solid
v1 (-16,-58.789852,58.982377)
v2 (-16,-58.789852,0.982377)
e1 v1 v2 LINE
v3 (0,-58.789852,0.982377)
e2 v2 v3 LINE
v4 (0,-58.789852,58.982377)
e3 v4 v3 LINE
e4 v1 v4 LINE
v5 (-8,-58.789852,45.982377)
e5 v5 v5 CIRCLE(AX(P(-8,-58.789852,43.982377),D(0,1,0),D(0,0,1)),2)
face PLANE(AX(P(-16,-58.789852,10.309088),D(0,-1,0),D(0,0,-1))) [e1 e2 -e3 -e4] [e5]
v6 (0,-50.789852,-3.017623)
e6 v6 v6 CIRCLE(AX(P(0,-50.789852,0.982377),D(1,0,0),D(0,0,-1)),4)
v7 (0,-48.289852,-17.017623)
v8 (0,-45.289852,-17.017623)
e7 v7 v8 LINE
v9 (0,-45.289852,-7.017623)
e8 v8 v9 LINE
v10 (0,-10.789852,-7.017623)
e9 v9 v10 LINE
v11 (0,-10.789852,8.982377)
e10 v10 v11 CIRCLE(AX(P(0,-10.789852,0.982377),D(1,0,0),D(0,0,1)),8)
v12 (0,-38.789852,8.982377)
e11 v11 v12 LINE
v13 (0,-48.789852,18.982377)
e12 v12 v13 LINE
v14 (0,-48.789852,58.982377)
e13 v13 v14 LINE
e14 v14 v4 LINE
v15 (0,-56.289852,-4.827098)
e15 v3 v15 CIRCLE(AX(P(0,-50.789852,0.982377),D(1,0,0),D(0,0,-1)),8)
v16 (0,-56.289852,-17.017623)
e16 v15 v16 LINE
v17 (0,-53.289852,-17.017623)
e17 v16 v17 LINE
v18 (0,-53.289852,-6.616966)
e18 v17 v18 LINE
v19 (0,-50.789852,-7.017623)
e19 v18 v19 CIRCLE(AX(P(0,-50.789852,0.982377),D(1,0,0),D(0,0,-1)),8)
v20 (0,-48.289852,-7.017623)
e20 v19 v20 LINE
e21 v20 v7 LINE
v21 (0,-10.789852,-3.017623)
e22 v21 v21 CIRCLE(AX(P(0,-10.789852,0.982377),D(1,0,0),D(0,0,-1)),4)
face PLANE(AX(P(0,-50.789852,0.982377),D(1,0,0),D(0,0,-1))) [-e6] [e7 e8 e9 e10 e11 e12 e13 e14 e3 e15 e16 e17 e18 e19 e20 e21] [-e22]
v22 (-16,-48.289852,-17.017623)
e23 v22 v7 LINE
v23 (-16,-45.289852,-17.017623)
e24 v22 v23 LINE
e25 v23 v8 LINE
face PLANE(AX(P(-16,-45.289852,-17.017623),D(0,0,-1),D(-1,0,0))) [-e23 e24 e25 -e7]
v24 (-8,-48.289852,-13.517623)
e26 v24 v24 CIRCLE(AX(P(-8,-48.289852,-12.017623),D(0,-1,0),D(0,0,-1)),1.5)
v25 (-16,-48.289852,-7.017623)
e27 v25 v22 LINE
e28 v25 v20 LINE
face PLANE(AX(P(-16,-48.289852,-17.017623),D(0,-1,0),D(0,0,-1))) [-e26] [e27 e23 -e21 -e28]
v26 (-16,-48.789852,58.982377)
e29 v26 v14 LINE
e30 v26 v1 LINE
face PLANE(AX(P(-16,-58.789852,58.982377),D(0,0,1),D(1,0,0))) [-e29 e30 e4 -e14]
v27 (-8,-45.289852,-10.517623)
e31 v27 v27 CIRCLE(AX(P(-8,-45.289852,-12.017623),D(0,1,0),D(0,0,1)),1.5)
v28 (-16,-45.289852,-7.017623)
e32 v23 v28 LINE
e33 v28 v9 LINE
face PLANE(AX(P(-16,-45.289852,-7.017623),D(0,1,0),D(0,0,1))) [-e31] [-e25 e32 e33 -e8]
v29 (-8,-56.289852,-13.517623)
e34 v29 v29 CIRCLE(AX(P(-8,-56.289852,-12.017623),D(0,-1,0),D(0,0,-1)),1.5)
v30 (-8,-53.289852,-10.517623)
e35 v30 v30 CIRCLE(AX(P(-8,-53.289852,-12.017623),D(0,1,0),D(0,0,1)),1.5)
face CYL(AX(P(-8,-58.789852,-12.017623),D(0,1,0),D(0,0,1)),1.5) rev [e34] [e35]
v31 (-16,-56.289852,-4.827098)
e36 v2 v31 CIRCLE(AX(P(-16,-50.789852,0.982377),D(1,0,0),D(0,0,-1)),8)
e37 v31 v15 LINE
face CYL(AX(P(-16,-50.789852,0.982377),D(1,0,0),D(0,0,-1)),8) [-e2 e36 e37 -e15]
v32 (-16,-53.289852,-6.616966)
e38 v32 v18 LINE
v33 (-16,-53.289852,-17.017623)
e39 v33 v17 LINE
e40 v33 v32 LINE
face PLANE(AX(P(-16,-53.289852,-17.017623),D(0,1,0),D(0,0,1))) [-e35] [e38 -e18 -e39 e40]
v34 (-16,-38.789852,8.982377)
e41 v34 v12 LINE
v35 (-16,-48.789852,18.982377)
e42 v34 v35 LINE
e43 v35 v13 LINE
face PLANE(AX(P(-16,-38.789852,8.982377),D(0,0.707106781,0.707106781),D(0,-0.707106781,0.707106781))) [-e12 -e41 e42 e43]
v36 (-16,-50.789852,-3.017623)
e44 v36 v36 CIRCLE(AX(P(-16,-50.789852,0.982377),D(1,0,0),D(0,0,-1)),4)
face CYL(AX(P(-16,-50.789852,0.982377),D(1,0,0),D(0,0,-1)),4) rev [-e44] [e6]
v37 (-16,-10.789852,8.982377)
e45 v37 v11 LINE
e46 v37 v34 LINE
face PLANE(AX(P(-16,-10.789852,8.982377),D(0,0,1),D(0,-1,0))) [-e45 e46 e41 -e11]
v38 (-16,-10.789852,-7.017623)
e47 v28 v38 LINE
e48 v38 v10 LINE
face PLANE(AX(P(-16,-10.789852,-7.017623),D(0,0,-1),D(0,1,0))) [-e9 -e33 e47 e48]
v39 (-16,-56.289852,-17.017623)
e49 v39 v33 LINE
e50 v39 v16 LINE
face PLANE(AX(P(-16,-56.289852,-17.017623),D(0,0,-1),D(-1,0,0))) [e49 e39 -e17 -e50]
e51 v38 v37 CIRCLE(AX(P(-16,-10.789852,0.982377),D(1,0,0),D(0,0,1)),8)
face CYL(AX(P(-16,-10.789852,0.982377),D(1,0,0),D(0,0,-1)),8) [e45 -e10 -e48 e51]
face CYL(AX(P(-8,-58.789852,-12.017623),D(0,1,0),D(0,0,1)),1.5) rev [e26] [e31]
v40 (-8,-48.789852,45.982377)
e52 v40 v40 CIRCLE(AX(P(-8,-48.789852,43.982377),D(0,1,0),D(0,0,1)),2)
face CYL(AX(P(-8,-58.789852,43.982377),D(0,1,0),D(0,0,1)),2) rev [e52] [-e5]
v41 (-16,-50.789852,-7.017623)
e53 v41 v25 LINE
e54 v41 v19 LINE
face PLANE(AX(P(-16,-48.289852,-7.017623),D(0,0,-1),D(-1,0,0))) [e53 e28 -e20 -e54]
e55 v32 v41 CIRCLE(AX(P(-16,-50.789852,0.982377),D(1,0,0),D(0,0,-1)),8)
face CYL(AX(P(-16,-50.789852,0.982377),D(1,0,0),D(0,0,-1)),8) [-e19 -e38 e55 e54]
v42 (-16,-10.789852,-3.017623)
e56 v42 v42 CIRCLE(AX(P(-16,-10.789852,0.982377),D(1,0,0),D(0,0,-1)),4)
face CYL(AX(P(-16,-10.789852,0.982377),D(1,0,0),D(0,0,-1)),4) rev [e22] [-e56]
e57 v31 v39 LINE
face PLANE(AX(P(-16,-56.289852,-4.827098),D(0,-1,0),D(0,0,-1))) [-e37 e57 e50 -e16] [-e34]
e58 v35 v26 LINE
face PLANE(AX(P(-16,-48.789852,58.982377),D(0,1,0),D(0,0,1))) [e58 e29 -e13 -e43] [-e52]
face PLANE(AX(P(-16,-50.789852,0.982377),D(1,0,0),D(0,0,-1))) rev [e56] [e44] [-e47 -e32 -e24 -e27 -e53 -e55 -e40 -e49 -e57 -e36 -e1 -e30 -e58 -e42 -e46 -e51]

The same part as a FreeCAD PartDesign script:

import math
import FreeCAD as App
import Part
import Sketcher

V = App.Vector
Q = App.Units.Quantity

doc = App.newDocument("Part")
params = doc.addObject("Spreadsheet::Sheet", "Params")
for row, (alias, value) in enumerate([
    ("sketch1_diameter", "8 mm"),
    ("sketch1_radius", "8 mm"),
    ("sketch1_width", "10 mm"),
    ("sketch1_width2", "3 mm"),
    ("sketch1_width3", "28 mm"),
    ("pad1_length", "16 mm"),
    ("sketch2_diameter", "4 mm"),
    ("sketch3_diameter", "3 mm"),
], start=1):
    params.set(f"A{row}", alias)
    params.set(f"B{row}", "=" + value)
    params.setAlias(f"B{row}", alias)

body = doc.addObject("PartDesign::Body", "Body")

# Sketch on YZ plane
sketch1 = doc.addObject("Sketcher::SketchObject", "Sketch")
body.addObject(sketch1)
sketch1.AttachmentSupport = (doc.YZ_Plane, [""])
sketch1.MapMode = "FlatFace"
sketch1.addGeometry([
    Part.LineSegment(V(-48.789852, 58.982377, 0), V(-58.789852, 58.982377, 0)),  # 0
    Part.LineSegment(V(-58.789852, 58.982377, 0), V(-58.789852, 0.982377, 0)),  # 1
    Part.ArcOfCircle(Part.Circle(V(-50.789852, 0.982377, 0), V(0, 0, 1), 8), math.radians(180), math.radians(226.567463)),  # 2
    Part.LineSegment(V(-56.289852, -4.827098, 0), V(-56.289852, -17.017623, 0)),  # 3
    Part.LineSegment(V(-56.289852, -17.017623, 0), V(-53.289852, -17.017623, 0)),  # 4
    Part.LineSegment(V(-53.289852, -17.017623, 0), V(-53.289852, -6.616966, 0)),  # 5
    Part.ArcOfCircle(Part.Circle(V(-50.789852, 0.982376, 0), V(0, 0, 1), 8), math.radians(-108.209957), math.radians(-90)),  # 6
    Part.LineSegment(V(-50.789852, -7.017623, 0), V(-48.289852, -7.017623, 0)),  # 7
    Part.LineSegment(V(-48.289852, -7.017623, 0), V(-48.289852, -17.017623, 0)),  # 8
    Part.LineSegment(V(-48.289852, -17.017623, 0), V(-45.289852, -17.017623, 0)),  # 9
    Part.LineSegment(V(-45.289852, -17.017623, 0), V(-45.289852, -7.017623, 0)),  # 10
    Part.LineSegment(V(-45.289852, -7.017623, 0), V(-10.789852, -7.017623, 0)),  # 11
    Part.ArcOfCircle(Part.Circle(V(-10.789852, 0.982377, 0), V(0, 0, 1), 8), math.radians(-90), math.radians(90)),  # 12
    Part.LineSegment(V(-10.789852, 8.982377, 0), V(-38.789852, 8.982377, 0)),  # 13
    Part.LineSegment(V(-38.789852, 8.982377, 0), V(-48.789852, 18.982377, 0)),  # 14
    Part.LineSegment(V(-48.789852, 18.982377, 0), V(-48.789852, 58.982377, 0)),  # 15
    Part.Circle(V(-50.789852, 0.982377, 0), V(0, 0, 1), 4),  # 16
    Part.Circle(V(-10.789852, 0.982377, 0), V(0, 0, 1), 4),  # 17
], False)
sketch1.addConstraint([
    Sketcher.Constraint("Coincident", 0, 2, 1, 1),
    Sketcher.Constraint("Tangent", 1, 2, 2, 1),
    Sketcher.Constraint("Coincident", 2, 2, 3, 1),
    Sketcher.Constraint("Coincident", 3, 2, 4, 1),
    Sketcher.Constraint("Coincident", 4, 2, 5, 1),
    Sketcher.Constraint("Coincident", 5, 2, 6, 1),
    Sketcher.Constraint("Tangent", 6, 2, 7, 1),
    Sketcher.Constraint("Coincident", 7, 2, 8, 1),
    Sketcher.Constraint("Coincident", 8, 2, 9, 1),
    Sketcher.Constraint("Coincident", 9, 2, 10, 1),
    Sketcher.Constraint("Coincident", 10, 2, 11, 1),
    Sketcher.Constraint("Tangent", 11, 2, 12, 1),
    Sketcher.Constraint("Tangent", 12, 2, 13, 1),
    Sketcher.Constraint("Coincident", 13, 2, 14, 1),
    Sketcher.Constraint("Coincident", 14, 2, 15, 1),
    Sketcher.Constraint("Coincident", 15, 2, 0, 1),
    Sketcher.Constraint("Horizontal", 0),
    Sketcher.Constraint("Vertical", 1),
    Sketcher.Constraint("Vertical", 3),
    Sketcher.Constraint("Horizontal", 4),
    Sketcher.Constraint("Vertical", 5),
    Sketcher.Constraint("Horizontal", 7),
    Sketcher.Constraint("Vertical", 8),
    Sketcher.Constraint("Horizontal", 9),
    Sketcher.Constraint("Vertical", 10),
    Sketcher.Constraint("Horizontal", 11),
    Sketcher.Constraint("Horizontal", 13),
    Sketcher.Constraint("Vertical", 15),
    Sketcher.Constraint("Coincident", 6, 3, 2, 3),
    Sketcher.Constraint("Coincident", 16, 3, 2, 3),
    Sketcher.Constraint("Coincident", 17, 3, 12, 3),
    Sketcher.Constraint("Equal", 2, 6),
    Sketcher.Constraint("Equal", 6, 12),
    Sketcher.Constraint("Equal", 16, 17),
    Sketcher.Constraint("Horizontal", 6, 3, 12, 3),
    Sketcher.Constraint("Horizontal", 4, 2, 8, 2),
    Sketcher.Constraint("Equal", 4, 9),
    Sketcher.Constraint("Equal", 0, 8),
    Sketcher.Constraint("Diameter", 16, 8.0),
    Sketcher.Constraint("Radius", 2, 8.0),
    Sketcher.Constraint("DistanceX", 0, 2, 0, 1, 10.0),
    Sketcher.Constraint("DistanceX", 4, 1, 4, 2, 3.0),
    Sketcher.Constraint("DistanceX", 13, 2, 13, 1, 28.0),
    Sketcher.Constraint("DistanceY", 1, 2, 1, 1, 58.0),
    Sketcher.Constraint("DistanceY", 15, 1, 15, 2, 40.0),
    Sketcher.Constraint("Angle", 14, Q("135 deg")),
    Sketcher.Constraint("DistanceX", 7, 1, 7, 2, 2.5),
    Sketcher.Constraint("DistanceX", 5, 2, 7, 2, 5.0),
    Sketcher.Constraint("DistanceY", 2, 2, -1, 1, 4.827098),
    Sketcher.Constraint("DistanceX", 2, 3, -1, 1, 50.789852),
])
sketch1.setExpression("Constraints[38]", "Params.sketch1_diameter")
sketch1.setExpression("Constraints[39]", "Params.sketch1_radius")
sketch1.setExpression("Constraints[40]", "Params.sketch1_width")
sketch1.setExpression("Constraints[41]", "Params.sketch1_width2")
sketch1.setExpression("Constraints[42]", "Params.sketch1_width3")
pad1 = doc.addObject("PartDesign::Pad", "Pad")
body.addObject(pad1)
pad1.Profile = sketch1
pad1.setExpression("Length", "Params.pad1_length")
pad1.Reversed = True

# Sketch on XZ plane
sketch2 = doc.addObject("Sketcher::SketchObject", "Sketch001")
body.addObject(sketch2)
sketch2.AttachmentSupport = (doc.XZ_Plane, [""])
sketch2.MapMode = "FlatFace"
sketch2.AttachmentOffset = App.Placement(V(0, 0, 48.789852), App.Rotation())
sketch2.addGeometry(Part.Circle(V(-8, 43.982377, 0), V(0, 0, 1), 2), False)
sketch2.addConstraint([
    Sketcher.Constraint("Diameter", 0, 4.0),
    Sketcher.Constraint("DistanceX", 0, 3, -1, 1, 8.0),
    Sketcher.Constraint("DistanceY", -1, 1, 0, 3, 43.982377),
])
sketch2.setExpression("Constraints[0]", "Params.sketch2_diameter")
pocket1 = doc.addObject("PartDesign::Pocket", "Pocket")
body.addObject(pocket1)
pocket1.Profile = sketch2
pocket1.Type = "ThroughAll"
pocket1.Reversed = True

# Sketch on XZ plane
sketch3 = doc.addObject("Sketcher::SketchObject", "Sketch002")
body.addObject(sketch3)
sketch3.AttachmentSupport = (doc.XZ_Plane, [""])
sketch3.MapMode = "FlatFace"
sketch3.AttachmentOffset = App.Placement(V(0, 0, 45.289852), App.Rotation())
sketch3.addGeometry(Part.Circle(V(-8, -12.017623, 0), V(0, 0, 1), 1.5), False)
sketch3.addConstraint([
    Sketcher.Constraint("Diameter", 0, 3.0),
    Sketcher.Constraint("DistanceX", 0, 3, -1, 1, 8.0),
    Sketcher.Constraint("DistanceY", 0, 3, -1, 1, 12.017623),
])
sketch3.setExpression("Constraints[0]", "Params.sketch3_diameter")
pocket2 = doc.addObject("PartDesign::Pocket", "Pocket001")
body.addObject(pocket2)
pocket2.Profile = sketch3
pocket2.Type = "ThroughAll"
pocket2.Reversed = True

doc.recompute()
